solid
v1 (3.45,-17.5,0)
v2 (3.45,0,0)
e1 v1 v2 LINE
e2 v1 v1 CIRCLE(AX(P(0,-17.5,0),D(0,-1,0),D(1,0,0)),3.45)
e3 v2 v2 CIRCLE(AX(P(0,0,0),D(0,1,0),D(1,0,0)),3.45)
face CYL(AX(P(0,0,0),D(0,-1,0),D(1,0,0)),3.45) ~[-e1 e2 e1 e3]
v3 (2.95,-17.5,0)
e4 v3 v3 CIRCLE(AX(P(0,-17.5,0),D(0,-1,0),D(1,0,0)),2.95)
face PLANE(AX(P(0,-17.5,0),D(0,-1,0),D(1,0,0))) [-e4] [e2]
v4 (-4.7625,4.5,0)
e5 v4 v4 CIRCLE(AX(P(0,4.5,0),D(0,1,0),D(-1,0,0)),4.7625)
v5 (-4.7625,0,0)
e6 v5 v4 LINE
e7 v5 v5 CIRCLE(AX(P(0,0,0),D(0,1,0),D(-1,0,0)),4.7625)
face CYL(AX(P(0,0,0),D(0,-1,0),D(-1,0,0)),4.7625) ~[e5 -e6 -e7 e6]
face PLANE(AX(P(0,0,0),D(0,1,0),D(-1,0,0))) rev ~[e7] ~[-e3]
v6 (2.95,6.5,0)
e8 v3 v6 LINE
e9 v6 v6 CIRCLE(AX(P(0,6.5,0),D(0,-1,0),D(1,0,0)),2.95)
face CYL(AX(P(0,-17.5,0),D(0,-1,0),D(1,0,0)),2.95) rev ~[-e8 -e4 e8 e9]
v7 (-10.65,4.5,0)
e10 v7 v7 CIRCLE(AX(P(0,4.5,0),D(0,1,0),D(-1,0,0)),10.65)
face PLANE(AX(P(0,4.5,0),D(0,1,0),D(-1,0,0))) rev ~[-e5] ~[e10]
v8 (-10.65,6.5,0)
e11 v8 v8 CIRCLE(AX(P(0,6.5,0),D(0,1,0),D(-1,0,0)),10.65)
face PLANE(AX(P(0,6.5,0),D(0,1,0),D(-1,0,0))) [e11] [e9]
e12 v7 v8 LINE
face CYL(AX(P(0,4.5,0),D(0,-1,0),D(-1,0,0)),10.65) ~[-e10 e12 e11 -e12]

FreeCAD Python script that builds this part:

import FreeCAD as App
import Part
import Sketcher
Q = App.Units.Quantity

doc = App.newDocument("Part")
params = doc.addObject("Spreadsheet::Sheet", "Params")
for row, (alias, value) in enumerate([
    ("sketch1_diameter", "6.9 mm"),
    ("pad1_length", "17.5 mm"),
    ("sketch2_diameter", "6.9 mm"),
    ("pad2_length", "4.5 mm"),
    ("sketch3_diameter", "6.9 mm"),
    ("pad3_length", "4.5 mm"),
    ("sketch4_diameter", "21.3 mm"),
    ("pad4_length", "2 mm"),
    ("sketch5_diameter", "5.9 mm"),
    ("pocket1_length", "28 mm"),
], start=1):
    params.set(f"A{row}", alias)
    params.set(f"B{row}", "=" + value)
    params.setAlias(f"B{row}", alias)

body = doc.addObject("PartDesign::Body", "Body")

# Sketch on XZ plane
sketch1 = doc.addObject("Sketcher::SketchObject", "Sketch")
body.addObject(sketch1)
sketch1.AttachmentSupport = (doc.XZ_Plane, [""])
sketch1.MapMode = "FlatFace"
sketch1.addGeometry(Part.Circle(App.Vector(0, 0, 0), App.Vector(0, 0, 1), 3.45), False)
sketch1.addConstraint(Sketcher.Constraint("Coincident", 0, 3, -1, 1))
sketch1.addConstraint(Sketcher.Constraint("Diameter", 0, Q("6.9 mm")))
sketch1.setExpression("Constraints[1]", "Params.sketch1_diameter")
pad1 = doc.addObject("PartDesign::Pad", "Pad")
body.addObject(pad1)
pad1.Profile = sketch1
pad1.setExpression("Length", "Params.pad1_length")

# Sketch on XZ plane
sketch2 = doc.addObject("Sketcher::SketchObject", "Sketch001")
body.addObject(sketch2)
sketch2.AttachmentSupport = (doc.XZ_Plane, [""])
sketch2.MapMode = "FlatFace"
sketch2.addGeometry(Part.Circle(App.Vector(0, 0, 0), App.Vector(0, 0, 1), 3.45), False)
sketch2.addConstraint(Sketcher.Constraint("Coincident", 0, 3, -1, 1))
sketch2.addConstraint(Sketcher.Constraint("Diameter", 0, Q("6.9 mm")))
sketch2.setExpression("Constraints[1]", "Params.sketch2_diameter")
pad2 = doc.addObject("PartDesign::Pad", "Pad001")
body.addObject(pad2)
pad2.Profile = sketch2
pad2.setExpression("Length", "Params.pad2_length")
pad2.Reversed = True

# Sketch on XZ plane
sketch3 = doc.addObject("Sketcher::SketchObject", "Sketch002")
body.addObject(sketch3)
sketch3.AttachmentSupport = (doc.XZ_Plane, [""])
sketch3.MapMode = "FlatFace"
sketch3.addGeometry(Part.Circle(App.Vector(0, 0, 0), App.Vector(0, 0, 1), 4.7625), False)
sketch3.addGeometry(Part.Circle(App.Vector(0, 0, 0), App.Vector(0, 0, 1), 3.45), False)
sketch3.addConstraint(Sketcher.Constraint("Coincident", 0, 3, -1, 1))
sketch3.addConstraint(Sketcher.Constraint("Coincident", 1, 3, -1, 1))
sketch3.addConstraint(Sketcher.Constraint("Diameter", 1, Q("6.9 mm")))
sketch3.addConstraint(Sketcher.Constraint("Diameter", 0, Q("9.525 mm")))
sketch3.setExpression("Constraints[2]", "Params.sketch3_diameter")
pad3 = doc.addObject("PartDesign::Pad", "Pad002")
body.addObject(pad3)
pad3.Profile = sketch3
pad3.setExpression("Length", "Params.pad3_length")
pad3.Reversed = True

# Sketch on XZ plane
sketch4 = doc.addObject("Sketcher::SketchObject", "Sketch003")
body.addObject(sketch4)
sketch4.AttachmentSupport = (doc.XZ_Plane, [""])
sketch4.MapMode = "FlatFace"
sketch4.AttachmentOffset = App.Placement(App.Vector(0, 0, -4.5), App.Rotation())
sketch4.addGeometry(Part.Circle(App.Vector(0, 0, 0), App.Vector(0, 0, 1), 10.65), False)
sketch4.addConstraint(Sketcher.Constraint("Coincident", 0, 3, -1, 1))
sketch4.addConstraint(Sketcher.Constraint("Diameter", 0, Q("21.3 mm")))
sketch4.setExpression("Constraints[1]", "Params.sketch4_diameter")
pad4 = doc.addObject("PartDesign::Pad", "Pad003")
body.addObject(pad4)
pad4.Profile = sketch4
pad4.setExpression("Length", "Params.pad4_length")
pad4.Reversed = True

# Sketch on XZ plane
sketch5 = doc.addObject("Sketcher::SketchObject", "Sketch004")
body.addObject(sketch5)
sketch5.AttachmentSupport = (doc.XZ_Plane, [""])
sketch5.MapMode = "FlatFace"
sketch5.AttachmentOffset = App.Placement(App.Vector(0, 0, 17.5), App.Rotation())
sketch5.addGeometry(Part.Circle(App.Vector(0, 0, 0), App.Vector(0, 0, 1), 2.95), False)
sketch5.addConstraint(Sketcher.Constraint("Coincident", 0, 3, -1, 1))
sketch5.addConstraint(Sketcher.Constraint("Diameter", 0, Q("5.9 mm")))
sketch5.setExpression("Constraints[1]", "Params.sketch5_diameter")
pocket1 = doc.addObject("PartDesign::Pocket", "Pocket")
body.addObject(pocket1)
pocket1.Profile = sketch5
pocket1.setExpression("Length", "Params.pocket1_length")

doc.recompute()
